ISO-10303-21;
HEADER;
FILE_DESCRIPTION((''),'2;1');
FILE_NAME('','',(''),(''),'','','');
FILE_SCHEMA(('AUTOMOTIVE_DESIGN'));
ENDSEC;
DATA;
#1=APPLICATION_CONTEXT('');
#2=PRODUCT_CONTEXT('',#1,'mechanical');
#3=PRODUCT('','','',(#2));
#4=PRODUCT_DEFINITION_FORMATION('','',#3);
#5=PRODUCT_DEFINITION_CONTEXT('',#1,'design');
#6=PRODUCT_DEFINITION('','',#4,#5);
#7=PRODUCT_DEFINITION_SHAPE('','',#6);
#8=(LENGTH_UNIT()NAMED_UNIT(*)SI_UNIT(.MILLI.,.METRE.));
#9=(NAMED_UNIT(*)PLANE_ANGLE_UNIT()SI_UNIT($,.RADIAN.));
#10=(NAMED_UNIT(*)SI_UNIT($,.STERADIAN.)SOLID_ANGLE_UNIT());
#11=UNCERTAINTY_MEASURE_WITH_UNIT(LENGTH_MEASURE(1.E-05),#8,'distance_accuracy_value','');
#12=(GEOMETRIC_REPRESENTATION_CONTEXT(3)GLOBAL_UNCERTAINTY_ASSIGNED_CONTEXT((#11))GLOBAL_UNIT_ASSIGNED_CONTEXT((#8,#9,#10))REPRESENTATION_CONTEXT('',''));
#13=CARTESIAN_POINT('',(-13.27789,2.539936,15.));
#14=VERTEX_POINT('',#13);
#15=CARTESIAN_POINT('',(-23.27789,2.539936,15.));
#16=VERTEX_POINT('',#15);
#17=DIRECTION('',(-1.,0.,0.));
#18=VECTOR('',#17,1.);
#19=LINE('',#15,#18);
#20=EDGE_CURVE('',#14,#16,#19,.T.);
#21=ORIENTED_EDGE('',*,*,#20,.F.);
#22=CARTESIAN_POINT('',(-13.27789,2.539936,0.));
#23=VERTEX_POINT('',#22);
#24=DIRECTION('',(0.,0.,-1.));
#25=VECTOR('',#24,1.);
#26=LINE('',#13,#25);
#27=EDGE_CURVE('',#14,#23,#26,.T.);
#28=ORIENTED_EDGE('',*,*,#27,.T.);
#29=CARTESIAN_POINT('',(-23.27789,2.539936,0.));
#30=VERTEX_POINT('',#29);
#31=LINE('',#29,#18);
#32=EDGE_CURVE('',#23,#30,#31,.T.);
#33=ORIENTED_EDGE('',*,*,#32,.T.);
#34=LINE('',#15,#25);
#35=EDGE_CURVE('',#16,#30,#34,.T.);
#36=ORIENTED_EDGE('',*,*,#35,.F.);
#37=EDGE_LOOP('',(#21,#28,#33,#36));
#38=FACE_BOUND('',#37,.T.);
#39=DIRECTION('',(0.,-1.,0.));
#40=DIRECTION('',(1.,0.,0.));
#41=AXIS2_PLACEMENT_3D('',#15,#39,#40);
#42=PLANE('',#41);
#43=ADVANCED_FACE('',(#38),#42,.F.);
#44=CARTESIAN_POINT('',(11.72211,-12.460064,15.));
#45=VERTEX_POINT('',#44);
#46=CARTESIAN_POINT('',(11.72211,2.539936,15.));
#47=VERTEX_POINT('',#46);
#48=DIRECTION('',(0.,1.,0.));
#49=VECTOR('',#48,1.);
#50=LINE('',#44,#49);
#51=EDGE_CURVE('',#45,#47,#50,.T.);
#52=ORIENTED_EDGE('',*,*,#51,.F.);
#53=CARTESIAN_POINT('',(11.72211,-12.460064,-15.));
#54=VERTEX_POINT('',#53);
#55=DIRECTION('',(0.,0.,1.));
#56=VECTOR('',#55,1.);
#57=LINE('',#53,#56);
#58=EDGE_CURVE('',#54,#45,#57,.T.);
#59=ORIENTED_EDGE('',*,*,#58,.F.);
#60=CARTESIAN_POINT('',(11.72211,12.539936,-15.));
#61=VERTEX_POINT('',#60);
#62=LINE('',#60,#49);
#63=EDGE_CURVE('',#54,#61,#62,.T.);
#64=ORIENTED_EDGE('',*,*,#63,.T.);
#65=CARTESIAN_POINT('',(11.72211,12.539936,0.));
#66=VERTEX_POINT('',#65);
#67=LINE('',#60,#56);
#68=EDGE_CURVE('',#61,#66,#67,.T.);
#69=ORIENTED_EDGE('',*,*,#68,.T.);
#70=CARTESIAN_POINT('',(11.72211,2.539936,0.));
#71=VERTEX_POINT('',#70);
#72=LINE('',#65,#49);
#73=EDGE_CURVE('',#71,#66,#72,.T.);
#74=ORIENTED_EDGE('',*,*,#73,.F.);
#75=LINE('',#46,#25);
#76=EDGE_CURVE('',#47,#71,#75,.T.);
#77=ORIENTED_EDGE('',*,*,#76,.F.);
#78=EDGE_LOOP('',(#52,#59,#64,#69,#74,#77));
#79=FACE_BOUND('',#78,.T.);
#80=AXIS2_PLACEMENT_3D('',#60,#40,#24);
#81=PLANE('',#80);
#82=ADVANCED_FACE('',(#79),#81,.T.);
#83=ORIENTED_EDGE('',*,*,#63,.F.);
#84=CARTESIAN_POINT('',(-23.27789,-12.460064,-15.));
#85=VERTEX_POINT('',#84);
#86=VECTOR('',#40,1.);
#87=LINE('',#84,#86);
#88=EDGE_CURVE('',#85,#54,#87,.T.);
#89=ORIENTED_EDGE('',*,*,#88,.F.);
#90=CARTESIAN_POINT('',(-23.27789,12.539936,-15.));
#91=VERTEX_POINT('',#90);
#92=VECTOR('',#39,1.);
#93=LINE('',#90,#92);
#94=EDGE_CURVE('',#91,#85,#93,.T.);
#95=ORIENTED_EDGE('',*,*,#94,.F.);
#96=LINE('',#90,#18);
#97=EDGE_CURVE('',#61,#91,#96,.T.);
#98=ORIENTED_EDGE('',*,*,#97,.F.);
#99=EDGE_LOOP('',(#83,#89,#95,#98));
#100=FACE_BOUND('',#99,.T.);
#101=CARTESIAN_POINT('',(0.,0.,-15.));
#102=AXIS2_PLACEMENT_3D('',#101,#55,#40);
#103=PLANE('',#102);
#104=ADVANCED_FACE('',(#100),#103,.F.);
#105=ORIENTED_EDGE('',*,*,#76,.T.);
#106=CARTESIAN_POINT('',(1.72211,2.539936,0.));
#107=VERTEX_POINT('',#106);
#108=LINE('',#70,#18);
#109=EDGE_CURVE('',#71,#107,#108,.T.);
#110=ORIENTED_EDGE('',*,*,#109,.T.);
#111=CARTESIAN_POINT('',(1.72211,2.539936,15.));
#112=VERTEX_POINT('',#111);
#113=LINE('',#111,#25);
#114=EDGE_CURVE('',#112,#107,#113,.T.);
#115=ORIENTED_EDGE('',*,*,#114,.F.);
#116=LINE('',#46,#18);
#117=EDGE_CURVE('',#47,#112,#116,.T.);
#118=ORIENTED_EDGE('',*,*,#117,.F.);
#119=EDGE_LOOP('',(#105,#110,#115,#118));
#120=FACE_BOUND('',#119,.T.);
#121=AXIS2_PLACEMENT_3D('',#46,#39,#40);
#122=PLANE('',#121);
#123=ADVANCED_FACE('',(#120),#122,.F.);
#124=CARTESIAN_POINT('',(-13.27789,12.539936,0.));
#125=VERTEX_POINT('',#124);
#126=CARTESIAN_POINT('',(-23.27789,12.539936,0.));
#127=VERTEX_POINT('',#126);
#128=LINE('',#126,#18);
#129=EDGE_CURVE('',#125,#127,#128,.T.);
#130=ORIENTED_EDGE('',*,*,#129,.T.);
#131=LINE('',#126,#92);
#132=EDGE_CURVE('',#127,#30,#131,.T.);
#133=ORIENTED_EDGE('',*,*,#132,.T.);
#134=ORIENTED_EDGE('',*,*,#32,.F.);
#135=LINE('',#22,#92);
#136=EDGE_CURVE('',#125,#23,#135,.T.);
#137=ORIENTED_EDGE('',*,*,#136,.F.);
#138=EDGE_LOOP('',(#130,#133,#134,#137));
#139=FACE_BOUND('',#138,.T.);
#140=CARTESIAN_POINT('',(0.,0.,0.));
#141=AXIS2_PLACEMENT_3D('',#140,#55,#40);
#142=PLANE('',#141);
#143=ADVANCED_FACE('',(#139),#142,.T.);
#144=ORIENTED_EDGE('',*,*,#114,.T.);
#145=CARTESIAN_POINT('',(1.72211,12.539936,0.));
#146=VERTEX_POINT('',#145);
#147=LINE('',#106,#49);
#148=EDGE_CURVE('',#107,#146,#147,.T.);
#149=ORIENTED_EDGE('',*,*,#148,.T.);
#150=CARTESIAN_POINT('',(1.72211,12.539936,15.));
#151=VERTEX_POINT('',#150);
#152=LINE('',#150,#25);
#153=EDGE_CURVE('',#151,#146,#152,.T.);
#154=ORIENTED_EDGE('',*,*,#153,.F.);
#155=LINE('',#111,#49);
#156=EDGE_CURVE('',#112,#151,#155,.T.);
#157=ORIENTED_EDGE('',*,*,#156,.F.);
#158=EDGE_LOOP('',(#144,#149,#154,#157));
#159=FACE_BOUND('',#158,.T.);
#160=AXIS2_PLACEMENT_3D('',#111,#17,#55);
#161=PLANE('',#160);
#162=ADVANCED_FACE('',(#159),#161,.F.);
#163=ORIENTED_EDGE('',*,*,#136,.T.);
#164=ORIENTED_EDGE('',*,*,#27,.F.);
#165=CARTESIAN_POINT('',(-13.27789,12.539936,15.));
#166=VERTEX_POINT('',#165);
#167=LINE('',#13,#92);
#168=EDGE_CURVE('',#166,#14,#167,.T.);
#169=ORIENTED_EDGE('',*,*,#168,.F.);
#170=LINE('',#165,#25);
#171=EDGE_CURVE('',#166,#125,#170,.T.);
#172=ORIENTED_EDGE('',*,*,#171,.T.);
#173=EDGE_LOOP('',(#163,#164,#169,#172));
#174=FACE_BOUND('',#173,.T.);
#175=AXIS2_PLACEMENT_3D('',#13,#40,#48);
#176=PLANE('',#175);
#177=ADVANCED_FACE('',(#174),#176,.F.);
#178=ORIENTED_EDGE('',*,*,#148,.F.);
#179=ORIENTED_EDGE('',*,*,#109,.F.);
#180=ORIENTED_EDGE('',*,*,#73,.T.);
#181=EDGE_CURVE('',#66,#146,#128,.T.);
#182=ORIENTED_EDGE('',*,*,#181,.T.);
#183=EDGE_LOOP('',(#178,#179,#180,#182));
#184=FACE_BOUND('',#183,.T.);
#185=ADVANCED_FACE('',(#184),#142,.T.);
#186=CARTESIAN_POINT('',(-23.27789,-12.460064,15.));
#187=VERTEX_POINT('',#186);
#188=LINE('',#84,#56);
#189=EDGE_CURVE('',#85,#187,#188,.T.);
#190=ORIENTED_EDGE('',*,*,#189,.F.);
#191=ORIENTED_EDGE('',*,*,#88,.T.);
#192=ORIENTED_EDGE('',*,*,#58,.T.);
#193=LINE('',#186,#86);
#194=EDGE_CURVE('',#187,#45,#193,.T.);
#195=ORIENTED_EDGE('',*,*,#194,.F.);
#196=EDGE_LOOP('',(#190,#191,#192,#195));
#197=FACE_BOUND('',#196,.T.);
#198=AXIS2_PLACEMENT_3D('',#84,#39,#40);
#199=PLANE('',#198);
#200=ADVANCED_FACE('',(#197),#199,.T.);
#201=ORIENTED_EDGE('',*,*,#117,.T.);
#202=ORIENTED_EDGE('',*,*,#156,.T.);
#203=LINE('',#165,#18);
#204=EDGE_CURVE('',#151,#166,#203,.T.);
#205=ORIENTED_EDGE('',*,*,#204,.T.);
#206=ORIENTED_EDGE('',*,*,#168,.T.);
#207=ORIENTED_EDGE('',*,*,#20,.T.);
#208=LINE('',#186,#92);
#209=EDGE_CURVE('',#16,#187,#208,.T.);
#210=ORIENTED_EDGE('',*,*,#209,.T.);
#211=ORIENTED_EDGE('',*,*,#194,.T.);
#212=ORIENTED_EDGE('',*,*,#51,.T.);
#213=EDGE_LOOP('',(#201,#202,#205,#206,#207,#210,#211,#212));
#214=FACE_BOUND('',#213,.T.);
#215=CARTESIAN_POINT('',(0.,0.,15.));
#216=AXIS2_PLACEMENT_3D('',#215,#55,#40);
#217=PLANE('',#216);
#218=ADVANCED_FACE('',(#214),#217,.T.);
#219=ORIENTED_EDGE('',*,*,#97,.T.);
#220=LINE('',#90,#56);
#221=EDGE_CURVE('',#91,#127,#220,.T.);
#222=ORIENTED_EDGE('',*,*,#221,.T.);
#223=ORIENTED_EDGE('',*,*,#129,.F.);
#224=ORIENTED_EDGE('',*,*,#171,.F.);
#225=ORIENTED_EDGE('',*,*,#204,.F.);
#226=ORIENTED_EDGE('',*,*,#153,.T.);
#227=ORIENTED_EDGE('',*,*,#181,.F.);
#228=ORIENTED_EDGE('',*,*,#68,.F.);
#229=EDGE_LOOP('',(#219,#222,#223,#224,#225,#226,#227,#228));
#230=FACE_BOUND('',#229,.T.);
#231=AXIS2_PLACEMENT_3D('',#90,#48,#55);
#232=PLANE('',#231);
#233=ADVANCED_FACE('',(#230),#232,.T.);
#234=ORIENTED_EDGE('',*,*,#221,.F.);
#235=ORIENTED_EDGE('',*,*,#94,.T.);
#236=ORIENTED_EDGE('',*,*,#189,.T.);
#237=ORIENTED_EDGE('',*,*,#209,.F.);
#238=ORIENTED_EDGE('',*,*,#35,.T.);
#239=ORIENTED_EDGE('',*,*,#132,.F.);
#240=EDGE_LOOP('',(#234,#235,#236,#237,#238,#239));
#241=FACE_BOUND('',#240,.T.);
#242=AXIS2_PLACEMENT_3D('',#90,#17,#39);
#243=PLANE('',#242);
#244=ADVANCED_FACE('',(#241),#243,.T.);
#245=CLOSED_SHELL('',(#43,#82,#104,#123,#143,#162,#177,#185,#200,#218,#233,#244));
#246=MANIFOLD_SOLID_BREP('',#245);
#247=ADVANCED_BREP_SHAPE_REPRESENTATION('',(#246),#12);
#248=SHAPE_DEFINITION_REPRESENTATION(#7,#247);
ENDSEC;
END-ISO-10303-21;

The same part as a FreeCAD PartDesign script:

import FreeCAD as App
import Part
import Sketcher
Q = App.Units.Quantity


def add_polygon(sketch, points):
    """Adds a closed chain of lines whose ends are joined by coincident constraints."""
    first, n = sketch.GeometryCount, len(points)
    for a, b in zip(points, points[1:] + points[:1]):
        sketch.addGeometry(Part.LineSegment(App.Vector(*a, 0), App.Vector(*b, 0)), False)
    for i in range(n):
        sketch.addConstraint(Sketcher.Constraint("Coincident", first + i, 2, first + (i + 1) % n, 1))

doc = App.newDocument("Part")
body = doc.addObject("PartDesign::Body", "Body")

sketch1 = doc.addObject("Sketcher::SketchObject", "Sketch")
body.addObject(sketch1)
sketch1.AttachmentSupport = (doc.XY_Plane, [""])
sketch1.MapMode = "FlatFace"
add_polygon(sketch1, [(-23, 13), (-23, -12), (12, -12), (12, 13)])
sketch1.addConstraint([
    Sketcher.Constraint("Vertical", 0),
    Sketcher.Constraint("Horizontal", 1),
    Sketcher.Constraint("Vertical", 2),
    Sketcher.Constraint("Horizontal", 3),
    Sketcher.Constraint("DistanceX", 1, 1, 1, 2, Q("35 mm")),
    Sketcher.Constraint("DistanceY", 0, 2, 0, 1, Q("25 mm")),
    Sketcher.Constraint("DistanceX", 0, 2, -1, 1, Q("23.27789 mm")),
    Sketcher.Constraint("DistanceY", 0, 2, -1, 1, Q("12.460064 mm")),
])
pad1 = doc.addObject("PartDesign::Pad", "Pad")
body.addObject(pad1)
pad1.Profile = sketch1
pad1.Length = 15
pad1.Reversed = True

sketch2 = doc.addObject("Sketcher::SketchObject", "Sketch001")
body.addObject(sketch2)
sketch2.AttachmentSupport = (doc.XY_Plane, [""])
sketch2.MapMode = "FlatFace"
add_polygon(sketch2, [(2, 13), (-13, 13), (-13, 3), (-23, 3), (-23, -12), (12, -12), (12, 3), (2, 3)])
sketch2.addConstraint([
    Sketcher.Constraint("Horizontal", 0),
    Sketcher.Constraint("Vertical", 1),
    Sketcher.Constraint("Horizontal", 2),
    Sketcher.Constraint("Vertical", 3),
    Sketcher.Constraint("Horizontal", 4),
    Sketcher.Constraint("Vertical", 5),
    Sketcher.Constraint("Horizontal", 6),
    Sketcher.Constraint("Vertical", 7),
    Sketcher.Constraint("Horizontal", 2, 2, 5, 2),
    Sketcher.Constraint("Equal", 2, 6),
    Sketcher.Constraint("Equal", 6, 1),
    Sketcher.Constraint("Equal", 0, 3),
    Sketcher.Constraint("DistanceX", 0, 2, 0, 1, Q("15 mm")),
    Sketcher.Constraint("DistanceX", 2, 2, 2, 1, Q("10 mm")),
    Sketcher.Constraint("DistanceX", 0, 2, -1, 1, Q("13.27789 mm")),
    Sketcher.Constraint("DistanceY", -1, 1, 0, 2, Q("12.539936 mm")),
])
pad2 = doc.addObject("PartDesign::Pad", "Pad001")
body.addObject(pad2)
pad2.Profile = sketch2
pad2.Length = 15

doc.recompute()
